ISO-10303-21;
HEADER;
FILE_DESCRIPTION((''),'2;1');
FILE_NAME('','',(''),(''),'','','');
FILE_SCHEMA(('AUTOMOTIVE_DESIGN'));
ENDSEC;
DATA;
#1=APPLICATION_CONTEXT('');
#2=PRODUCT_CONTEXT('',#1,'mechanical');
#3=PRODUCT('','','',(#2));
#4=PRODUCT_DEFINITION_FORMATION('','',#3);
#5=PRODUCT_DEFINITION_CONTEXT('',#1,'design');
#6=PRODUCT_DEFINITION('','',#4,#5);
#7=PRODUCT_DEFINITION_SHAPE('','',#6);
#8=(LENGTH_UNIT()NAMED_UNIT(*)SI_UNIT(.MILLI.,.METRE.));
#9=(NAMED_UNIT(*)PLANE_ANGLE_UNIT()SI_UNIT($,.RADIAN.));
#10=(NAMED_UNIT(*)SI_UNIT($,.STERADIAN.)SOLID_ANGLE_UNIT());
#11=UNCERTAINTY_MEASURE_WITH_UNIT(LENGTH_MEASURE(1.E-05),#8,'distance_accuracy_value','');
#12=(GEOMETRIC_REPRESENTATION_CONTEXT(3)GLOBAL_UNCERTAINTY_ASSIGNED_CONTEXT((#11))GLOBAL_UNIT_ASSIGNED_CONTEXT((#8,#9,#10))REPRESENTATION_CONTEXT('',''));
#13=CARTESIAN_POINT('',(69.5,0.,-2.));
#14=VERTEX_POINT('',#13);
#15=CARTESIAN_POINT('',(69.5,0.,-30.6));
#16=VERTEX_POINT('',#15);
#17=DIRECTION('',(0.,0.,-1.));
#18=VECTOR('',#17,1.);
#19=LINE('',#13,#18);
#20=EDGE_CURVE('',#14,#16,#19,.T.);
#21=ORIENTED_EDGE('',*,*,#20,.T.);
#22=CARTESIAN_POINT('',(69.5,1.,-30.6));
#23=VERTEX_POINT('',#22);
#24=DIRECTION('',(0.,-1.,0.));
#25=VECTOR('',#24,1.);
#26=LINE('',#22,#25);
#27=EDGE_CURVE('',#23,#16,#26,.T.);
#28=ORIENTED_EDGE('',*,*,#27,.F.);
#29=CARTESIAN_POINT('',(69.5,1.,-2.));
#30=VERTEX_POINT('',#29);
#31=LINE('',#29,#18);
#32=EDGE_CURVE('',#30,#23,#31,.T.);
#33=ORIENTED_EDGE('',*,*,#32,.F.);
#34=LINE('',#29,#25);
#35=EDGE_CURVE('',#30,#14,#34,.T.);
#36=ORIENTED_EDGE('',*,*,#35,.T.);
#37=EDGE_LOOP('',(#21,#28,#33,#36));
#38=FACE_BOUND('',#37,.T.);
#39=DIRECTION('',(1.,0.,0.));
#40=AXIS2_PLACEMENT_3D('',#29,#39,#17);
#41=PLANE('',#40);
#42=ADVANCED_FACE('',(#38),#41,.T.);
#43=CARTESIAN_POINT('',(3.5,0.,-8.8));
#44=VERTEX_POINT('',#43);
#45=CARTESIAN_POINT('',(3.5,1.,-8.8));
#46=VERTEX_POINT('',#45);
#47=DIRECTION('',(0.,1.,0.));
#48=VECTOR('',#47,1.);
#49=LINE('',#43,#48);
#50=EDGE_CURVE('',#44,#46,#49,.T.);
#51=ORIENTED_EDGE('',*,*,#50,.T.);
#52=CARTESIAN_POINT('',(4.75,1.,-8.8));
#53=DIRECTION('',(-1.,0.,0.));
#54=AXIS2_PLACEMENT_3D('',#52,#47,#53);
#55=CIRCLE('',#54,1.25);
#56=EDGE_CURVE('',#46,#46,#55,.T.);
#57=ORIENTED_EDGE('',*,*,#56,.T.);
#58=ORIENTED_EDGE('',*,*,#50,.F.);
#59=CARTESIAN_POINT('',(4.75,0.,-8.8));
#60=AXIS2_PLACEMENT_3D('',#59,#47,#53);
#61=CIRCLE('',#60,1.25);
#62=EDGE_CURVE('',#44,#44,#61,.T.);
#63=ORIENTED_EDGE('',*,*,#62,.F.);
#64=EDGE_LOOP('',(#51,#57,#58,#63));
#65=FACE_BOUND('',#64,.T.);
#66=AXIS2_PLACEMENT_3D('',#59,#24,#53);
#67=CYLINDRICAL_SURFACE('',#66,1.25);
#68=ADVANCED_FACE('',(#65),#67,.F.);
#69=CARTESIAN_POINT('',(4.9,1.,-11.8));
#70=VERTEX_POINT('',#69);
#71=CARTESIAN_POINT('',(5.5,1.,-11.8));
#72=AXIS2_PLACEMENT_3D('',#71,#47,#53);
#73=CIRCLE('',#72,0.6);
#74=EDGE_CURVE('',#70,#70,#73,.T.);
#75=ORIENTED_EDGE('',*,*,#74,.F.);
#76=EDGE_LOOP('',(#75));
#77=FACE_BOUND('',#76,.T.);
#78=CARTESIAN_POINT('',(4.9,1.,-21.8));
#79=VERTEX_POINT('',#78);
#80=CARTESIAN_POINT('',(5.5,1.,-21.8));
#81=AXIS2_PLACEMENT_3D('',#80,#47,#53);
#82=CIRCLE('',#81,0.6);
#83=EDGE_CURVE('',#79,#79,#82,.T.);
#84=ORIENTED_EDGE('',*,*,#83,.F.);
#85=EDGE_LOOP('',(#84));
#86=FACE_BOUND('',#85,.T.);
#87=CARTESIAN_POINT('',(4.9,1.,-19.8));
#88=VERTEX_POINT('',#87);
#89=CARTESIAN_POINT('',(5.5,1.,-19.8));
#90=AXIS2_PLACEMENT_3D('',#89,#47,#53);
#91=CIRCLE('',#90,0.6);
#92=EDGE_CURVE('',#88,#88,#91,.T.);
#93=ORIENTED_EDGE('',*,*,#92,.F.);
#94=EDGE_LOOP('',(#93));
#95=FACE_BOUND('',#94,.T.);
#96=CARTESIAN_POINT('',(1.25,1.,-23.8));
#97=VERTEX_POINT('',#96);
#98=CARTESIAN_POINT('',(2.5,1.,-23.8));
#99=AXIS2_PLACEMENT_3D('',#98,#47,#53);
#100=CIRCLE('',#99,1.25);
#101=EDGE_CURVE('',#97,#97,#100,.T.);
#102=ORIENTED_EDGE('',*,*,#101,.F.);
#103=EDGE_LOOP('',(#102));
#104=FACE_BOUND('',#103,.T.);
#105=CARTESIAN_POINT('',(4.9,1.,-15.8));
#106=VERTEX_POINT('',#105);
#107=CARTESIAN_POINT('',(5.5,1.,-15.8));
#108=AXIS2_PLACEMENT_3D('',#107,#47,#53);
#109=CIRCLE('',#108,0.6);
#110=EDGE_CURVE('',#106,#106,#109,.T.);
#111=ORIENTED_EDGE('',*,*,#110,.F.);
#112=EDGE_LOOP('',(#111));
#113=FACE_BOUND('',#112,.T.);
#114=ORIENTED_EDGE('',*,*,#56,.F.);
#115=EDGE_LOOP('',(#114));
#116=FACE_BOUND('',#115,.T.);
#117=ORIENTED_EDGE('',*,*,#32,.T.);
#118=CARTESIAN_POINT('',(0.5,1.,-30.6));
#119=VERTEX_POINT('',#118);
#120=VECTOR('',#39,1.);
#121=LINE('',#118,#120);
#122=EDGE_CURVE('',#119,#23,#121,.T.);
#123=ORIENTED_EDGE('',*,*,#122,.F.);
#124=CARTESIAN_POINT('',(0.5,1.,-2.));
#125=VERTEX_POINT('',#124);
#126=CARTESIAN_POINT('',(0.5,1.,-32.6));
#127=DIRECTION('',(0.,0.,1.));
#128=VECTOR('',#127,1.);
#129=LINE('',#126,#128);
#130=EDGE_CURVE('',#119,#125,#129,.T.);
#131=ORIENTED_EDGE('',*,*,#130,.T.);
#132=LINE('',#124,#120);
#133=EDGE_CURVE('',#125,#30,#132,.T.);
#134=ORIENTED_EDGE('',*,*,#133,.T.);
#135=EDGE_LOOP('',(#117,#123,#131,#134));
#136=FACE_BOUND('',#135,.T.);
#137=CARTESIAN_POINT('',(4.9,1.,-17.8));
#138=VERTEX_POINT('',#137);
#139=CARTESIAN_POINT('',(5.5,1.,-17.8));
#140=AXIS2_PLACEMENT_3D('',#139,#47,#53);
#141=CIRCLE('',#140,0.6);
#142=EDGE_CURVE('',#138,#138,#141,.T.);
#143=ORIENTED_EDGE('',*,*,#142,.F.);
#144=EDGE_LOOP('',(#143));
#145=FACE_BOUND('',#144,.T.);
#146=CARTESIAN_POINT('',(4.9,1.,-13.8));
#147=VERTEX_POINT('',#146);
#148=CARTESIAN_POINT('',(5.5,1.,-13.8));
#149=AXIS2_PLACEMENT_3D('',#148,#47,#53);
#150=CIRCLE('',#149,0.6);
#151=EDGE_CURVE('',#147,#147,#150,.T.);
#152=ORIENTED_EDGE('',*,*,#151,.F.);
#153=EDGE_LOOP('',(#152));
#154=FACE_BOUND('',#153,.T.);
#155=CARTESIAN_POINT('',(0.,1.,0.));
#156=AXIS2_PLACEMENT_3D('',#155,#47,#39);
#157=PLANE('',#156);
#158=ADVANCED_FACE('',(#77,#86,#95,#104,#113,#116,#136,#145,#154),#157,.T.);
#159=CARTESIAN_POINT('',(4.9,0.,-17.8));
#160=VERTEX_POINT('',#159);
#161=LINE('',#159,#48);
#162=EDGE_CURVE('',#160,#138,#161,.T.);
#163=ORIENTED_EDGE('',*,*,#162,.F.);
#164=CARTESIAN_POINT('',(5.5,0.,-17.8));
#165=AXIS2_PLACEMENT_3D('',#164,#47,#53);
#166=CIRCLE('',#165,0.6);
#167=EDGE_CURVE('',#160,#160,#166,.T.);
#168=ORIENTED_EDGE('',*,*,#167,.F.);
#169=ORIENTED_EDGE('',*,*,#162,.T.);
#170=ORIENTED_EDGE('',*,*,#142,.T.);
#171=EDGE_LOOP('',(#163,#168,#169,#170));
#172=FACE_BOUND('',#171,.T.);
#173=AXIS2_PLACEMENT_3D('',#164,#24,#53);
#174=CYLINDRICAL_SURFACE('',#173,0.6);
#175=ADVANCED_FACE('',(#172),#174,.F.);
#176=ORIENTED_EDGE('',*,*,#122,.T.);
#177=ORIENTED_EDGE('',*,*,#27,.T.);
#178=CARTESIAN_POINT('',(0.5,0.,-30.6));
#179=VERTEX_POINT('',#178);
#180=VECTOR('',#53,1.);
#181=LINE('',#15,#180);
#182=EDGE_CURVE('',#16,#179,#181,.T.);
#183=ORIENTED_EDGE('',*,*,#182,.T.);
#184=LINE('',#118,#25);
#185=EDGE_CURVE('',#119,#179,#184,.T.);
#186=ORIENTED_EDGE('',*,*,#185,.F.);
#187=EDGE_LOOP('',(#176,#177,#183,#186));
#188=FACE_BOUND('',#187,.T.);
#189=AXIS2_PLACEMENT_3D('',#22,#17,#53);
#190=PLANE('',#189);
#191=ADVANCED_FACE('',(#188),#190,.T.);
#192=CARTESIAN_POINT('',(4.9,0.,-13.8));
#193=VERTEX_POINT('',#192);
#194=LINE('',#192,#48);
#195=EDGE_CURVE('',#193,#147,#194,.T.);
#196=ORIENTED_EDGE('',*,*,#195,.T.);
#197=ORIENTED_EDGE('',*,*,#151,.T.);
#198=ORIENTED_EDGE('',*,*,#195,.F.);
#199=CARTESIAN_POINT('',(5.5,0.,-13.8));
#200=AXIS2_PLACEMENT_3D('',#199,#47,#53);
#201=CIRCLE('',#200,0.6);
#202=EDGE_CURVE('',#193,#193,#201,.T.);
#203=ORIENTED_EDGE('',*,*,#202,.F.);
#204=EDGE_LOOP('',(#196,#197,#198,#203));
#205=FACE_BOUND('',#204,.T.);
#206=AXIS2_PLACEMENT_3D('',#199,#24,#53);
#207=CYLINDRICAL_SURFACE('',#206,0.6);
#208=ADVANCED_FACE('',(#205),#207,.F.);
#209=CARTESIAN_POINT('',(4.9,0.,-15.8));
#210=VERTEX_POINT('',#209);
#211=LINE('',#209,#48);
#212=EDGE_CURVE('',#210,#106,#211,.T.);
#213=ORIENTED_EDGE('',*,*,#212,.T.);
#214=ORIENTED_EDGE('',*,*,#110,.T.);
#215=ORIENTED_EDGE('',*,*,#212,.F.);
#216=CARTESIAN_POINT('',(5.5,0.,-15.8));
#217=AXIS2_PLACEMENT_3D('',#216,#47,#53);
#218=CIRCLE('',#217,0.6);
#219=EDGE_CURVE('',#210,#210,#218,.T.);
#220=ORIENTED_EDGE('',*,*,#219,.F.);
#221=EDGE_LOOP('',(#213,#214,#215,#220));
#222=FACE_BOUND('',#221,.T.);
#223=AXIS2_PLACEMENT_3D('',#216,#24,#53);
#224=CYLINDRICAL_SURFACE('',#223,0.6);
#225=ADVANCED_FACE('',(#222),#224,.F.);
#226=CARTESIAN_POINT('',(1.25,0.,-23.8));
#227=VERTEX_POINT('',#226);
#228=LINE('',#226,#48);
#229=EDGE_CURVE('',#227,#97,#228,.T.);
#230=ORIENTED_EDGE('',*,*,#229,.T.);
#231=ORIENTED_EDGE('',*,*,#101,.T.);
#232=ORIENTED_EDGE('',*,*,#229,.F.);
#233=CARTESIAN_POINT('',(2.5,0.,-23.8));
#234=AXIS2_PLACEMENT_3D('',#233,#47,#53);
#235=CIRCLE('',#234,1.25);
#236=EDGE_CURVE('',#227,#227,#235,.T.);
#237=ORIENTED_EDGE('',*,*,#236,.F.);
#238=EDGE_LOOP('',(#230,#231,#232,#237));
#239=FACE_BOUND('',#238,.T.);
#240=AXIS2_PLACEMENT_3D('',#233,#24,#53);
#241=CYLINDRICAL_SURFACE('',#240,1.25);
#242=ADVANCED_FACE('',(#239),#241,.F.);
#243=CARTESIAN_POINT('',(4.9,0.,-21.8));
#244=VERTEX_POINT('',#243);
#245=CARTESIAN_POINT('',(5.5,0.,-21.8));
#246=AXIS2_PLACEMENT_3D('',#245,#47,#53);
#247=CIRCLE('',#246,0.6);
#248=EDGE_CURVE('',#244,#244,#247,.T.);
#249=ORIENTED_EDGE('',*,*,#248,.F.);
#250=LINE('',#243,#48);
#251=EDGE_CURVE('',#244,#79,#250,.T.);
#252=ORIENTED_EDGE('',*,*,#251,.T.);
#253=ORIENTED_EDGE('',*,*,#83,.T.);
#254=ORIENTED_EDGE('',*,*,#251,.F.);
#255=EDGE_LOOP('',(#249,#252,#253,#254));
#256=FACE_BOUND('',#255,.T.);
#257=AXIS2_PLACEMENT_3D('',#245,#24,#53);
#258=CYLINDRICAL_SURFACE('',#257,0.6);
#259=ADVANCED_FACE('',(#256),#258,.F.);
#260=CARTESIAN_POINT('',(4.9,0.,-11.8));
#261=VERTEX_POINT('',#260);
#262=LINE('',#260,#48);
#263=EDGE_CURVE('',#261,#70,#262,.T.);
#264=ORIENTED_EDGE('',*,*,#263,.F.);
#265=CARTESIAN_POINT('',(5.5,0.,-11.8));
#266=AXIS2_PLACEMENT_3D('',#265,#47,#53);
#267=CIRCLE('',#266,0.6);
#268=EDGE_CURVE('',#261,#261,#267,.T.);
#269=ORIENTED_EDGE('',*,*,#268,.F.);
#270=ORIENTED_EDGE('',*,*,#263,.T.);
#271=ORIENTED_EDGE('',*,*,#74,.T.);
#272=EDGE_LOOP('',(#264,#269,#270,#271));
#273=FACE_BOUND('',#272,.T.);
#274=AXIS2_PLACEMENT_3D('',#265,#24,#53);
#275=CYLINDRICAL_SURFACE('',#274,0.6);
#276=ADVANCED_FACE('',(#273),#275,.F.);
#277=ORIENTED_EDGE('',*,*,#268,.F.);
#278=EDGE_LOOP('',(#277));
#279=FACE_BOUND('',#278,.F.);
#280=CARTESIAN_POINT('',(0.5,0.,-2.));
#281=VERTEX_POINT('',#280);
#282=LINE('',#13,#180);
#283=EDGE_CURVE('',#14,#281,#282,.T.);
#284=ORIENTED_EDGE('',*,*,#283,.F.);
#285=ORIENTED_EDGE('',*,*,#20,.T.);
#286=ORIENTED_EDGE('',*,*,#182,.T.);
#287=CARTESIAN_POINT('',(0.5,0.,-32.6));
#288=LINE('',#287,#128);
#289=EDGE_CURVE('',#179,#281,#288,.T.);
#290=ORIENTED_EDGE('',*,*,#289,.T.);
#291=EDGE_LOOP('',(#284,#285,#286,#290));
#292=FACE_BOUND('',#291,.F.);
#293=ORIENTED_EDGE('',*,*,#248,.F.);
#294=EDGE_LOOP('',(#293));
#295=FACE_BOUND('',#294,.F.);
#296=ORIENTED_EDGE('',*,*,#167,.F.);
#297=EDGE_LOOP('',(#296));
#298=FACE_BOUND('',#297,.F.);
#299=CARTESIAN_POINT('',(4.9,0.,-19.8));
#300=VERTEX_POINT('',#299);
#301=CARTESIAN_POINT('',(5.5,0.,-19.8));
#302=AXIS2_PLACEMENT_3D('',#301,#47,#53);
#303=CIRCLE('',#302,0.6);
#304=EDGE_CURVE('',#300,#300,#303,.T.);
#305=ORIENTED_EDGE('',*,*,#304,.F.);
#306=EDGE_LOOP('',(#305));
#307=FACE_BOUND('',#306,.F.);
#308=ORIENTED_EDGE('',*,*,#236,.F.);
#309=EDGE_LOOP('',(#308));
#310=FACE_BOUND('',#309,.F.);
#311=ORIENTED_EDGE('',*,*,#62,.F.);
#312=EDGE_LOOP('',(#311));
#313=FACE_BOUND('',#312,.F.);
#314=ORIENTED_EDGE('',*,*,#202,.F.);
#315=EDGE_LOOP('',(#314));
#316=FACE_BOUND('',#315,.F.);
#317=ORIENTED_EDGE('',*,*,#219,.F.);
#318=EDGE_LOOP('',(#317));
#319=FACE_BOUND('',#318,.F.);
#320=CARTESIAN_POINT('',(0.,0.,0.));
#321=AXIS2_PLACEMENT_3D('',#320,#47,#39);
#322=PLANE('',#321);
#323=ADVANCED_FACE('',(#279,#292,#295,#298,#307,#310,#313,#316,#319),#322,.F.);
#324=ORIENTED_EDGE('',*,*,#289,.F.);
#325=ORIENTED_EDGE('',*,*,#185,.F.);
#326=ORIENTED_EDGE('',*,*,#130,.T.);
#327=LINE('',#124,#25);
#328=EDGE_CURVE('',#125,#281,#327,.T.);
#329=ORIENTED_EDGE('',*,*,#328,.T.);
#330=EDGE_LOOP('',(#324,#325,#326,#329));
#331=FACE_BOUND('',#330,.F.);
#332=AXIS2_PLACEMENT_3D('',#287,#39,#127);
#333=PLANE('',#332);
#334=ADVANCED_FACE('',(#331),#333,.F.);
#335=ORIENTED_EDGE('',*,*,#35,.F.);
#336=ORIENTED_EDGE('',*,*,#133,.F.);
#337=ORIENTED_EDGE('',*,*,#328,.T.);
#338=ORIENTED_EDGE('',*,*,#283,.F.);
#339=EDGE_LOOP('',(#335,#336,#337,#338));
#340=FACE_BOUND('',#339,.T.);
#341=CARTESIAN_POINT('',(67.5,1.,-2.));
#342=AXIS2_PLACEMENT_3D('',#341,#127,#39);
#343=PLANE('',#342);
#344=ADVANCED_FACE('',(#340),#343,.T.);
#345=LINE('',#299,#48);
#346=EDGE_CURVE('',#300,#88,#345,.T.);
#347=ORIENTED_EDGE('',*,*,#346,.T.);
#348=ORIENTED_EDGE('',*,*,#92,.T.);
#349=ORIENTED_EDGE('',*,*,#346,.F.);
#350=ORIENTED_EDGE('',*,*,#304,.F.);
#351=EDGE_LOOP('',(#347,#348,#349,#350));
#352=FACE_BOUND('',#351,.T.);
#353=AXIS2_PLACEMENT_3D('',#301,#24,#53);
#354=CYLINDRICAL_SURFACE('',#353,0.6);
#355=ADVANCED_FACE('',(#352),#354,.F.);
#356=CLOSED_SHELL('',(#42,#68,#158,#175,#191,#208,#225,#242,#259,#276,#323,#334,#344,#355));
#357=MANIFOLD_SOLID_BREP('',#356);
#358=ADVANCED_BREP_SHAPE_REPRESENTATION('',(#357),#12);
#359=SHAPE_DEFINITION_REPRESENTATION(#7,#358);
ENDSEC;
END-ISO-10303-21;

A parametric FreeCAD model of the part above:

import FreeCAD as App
import Part
import Sketcher

doc = App.newDocument("Part")
body = doc.addObject("PartDesign::Body", "Body")

# Sketch on XZ plane
sketch1 = body.newObject("Sketcher::SketchObject", "Sketch")
sketch1.AttachmentSupport = (doc.getObject("XZ_Plane"), [""])
sketch1.MapMode = "FlatFace"
sketch1.addGeometry(Part.LineSegment(App.Vector(67.5, -32.6, 0), App.Vector(0.5, -32.6, 0)), False)
sketch1.addGeometry(Part.LineSegment(App.Vector(0.5, -32.6, 0), App.Vector(0.5, 0, 0)), False)
sketch1.addGeometry(Part.LineSegment(App.Vector(0.5, 0, 0), App.Vector(67.5, 0, 0)), False)
sketch1.addGeometry(Part.LineSegment(App.Vector(67.5, 0, 0), App.Vector(67.5, -32.6, 0)), False)
sketch1.addGeometry(Part.Circle(App.Vector(2.5, -23.8, 0), App.Vector(0, 0, 1), 1.2), False)
sketch1.addGeometry(Part.Circle(App.Vector(5.5, -21.8, 0), App.Vector(0, 0, 1), 0.6), False)
sketch1.addGeometry(Part.Circle(App.Vector(5.5, -19.8, 0), App.Vector(0, 0, 1), 0.6), False)
sketch1.addGeometry(Part.Circle(App.Vector(5.5, -17.8, 0), App.Vector(0, 0, 1), 0.6), False)
sketch1.addGeometry(Part.Circle(App.Vector(5.5, -15.8, 0), App.Vector(0, 0, 1), 0.6), False)
sketch1.addGeometry(Part.Circle(App.Vector(5.5, -13.8, 0), App.Vector(0, 0, 1), 0.6), False)
sketch1.addGeometry(Part.Circle(App.Vector(5.5, -11.8, 0), App.Vector(0, 0, 1), 0.6), False)
sketch1.addGeometry(Part.Circle(App.Vector(4.8, -8.8, 0), App.Vector(0, 0, 1), 1.2), False)
sketch1.addConstraint(Sketcher.Constraint("Coincident", 0, 2, 1, 1))
sketch1.addConstraint(Sketcher.Constraint("Coincident", 1, 2, 2, 1))
sketch1.addConstraint(Sketcher.Constraint("Coincident", 2, 2, 3, 1))
sketch1.addConstraint(Sketcher.Constraint("Coincident", 3, 2, 0, 1))
sketch1.addConstraint(Sketcher.Constraint("Horizontal", 0))
sketch1.addConstraint(Sketcher.Constraint("Vertical", 1))
sketch1.addConstraint(Sketcher.Constraint("Horizontal", 2))
sketch1.addConstraint(Sketcher.Constraint("Vertical", 3))
sketch1.addConstraint(Sketcher.Constraint("Equal", 5, 6))
sketch1.addConstraint(Sketcher.Constraint("Equal", 6, 7))
sketch1.addConstraint(Sketcher.Constraint("Equal", 7, 8))
sketch1.addConstraint(Sketcher.Constraint("Equal", 8, 9))
sketch1.addConstraint(Sketcher.Constraint("Equal", 9, 10))
sketch1.addConstraint(Sketcher.Constraint("Equal", 4, 11))
sketch1.addConstraint(Sketcher.Constraint("PointOnObject", 1, 2, -1))
sketch1.addConstraint(Sketcher.Constraint("Vertical", 5, 3, 6, 3))
sketch1.addConstraint(Sketcher.Constraint("Vertical", 6, 3, 7, 3))
sketch1.addConstraint(Sketcher.Constraint("Vertical", 7, 3, 8, 3))
sketch1.addConstraint(Sketcher.Constraint("Vertical", 8, 3, 9, 3))
sketch1.addConstraint(Sketcher.Constraint("Vertical", 9, 3, 10, 3))
sketch1.addConstraint(Sketcher.Constraint("Diameter", 4, 2.5))
sketch1.addConstraint(Sketcher.Constraint("Diameter", 5, 1.2))
sketch1.addConstraint(Sketcher.Constraint("DistanceX", 0, 2, 0, 1, 67.0))
sketch1.addConstraint(Sketcher.Constraint("DistanceX", -1, 1, 4, 3, 2.5))
sketch1.addConstraint(Sketcher.Constraint("DistanceY", 1, 1, 1, 2, 32.6))
sketch1.addConstraint(Sketcher.Constraint("DistanceX", 4, 3, 5, 3, 3.0))
sketch1.addConstraint(Sketcher.Constraint("DistanceY", 4, 3, 5, 3, 2.0))
sketch1.addConstraint(Sketcher.Constraint("DistanceY", 5, 3, 6, 3, 2.0))
sketch1.addConstraint(Sketcher.Constraint("DistanceY", 6, 3, 7, 3, 2.0))
sketch1.addConstraint(Sketcher.Constraint("DistanceY", 7, 3, 8, 3, 2.0))
sketch1.addConstraint(Sketcher.Constraint("DistanceY", 8, 3, 9, 3, 2.0))
sketch1.addConstraint(Sketcher.Constraint("DistanceY", 9, 3, 10, 3, 2.0))
sketch1.addConstraint(Sketcher.Constraint("DistanceY", 10, 3, 11, 3, 3.0))
sketch1.addConstraint(Sketcher.Constraint("DistanceX", 0, 2, 4, 3, 2.0))
sketch1.addConstraint(Sketcher.Constraint("DistanceY", 4, 3, -1, 1, 23.8))
sketch1.addConstraint(Sketcher.Constraint("DistanceX", -1, 1, 11, 3, 4.75))
pad1 = body.newObject("PartDesign::Pad", "Pad")
pad1.Profile = sketch1
pad1.Length = 1
pad1.Reversed = True

# Sketch on XZ plane
sketch2 = body.newObject("Sketcher::SketchObject", "Sketch001")
sketch2.AttachmentSupport = (doc.getObject("XZ_Plane"), [""])
sketch2.MapMode = "FlatFace"
sketch2.AttachmentOffset = App.Placement(App.Vector(0, 0, -1), App.Rotation())
sketch2.addGeometry(Part.LineSegment(App.Vector(0.5, -2, 0), App.Vector(0.5, 0, 0)), False)
sketch2.addGeometry(Part.LineSegment(App.Vector(0.5, 0, 0), App.Vector(67.5, 0, 0)), False)
sketch2.addGeometry(Part.LineSegment(App.Vector(67.5, 0, 0), App.Vector(67.5, -2, 0)), False)
sketch2.addGeometry(Part.LineSegment(App.Vector(67.5, -2, 0), App.Vector(0.5, -2, 0)), False)
sketch2.addGeometry(Part.LineSegment(App.Vector(0.5, -32.6, 0), App.Vector(0.5, -30.6, 0)), False)
sketch2.addGeometry(Part.LineSegment(App.Vector(0.5, -30.6, 0), App.Vector(67.5, -30.6, 0)), False)
sketch2.addGeometry(Part.LineSegment(App.Vector(67.5, -30.6, 0), App.Vector(67.5, -32.6, 0)), False)
sketch2.addGeometry(Part.LineSegment(App.Vector(67.5, -32.6, 0), App.Vector(0.5, -32.6, 0)), False)
sketch2.addConstraint(Sketcher.Constraint("Coincident", 0, 2, 1, 1))
sketch2.addConstraint(Sketcher.Constraint("Coincident", 1, 2, 2, 1))
sketch2.addConstraint(Sketcher.Constraint("Coincident", 2, 2, 3, 1))
sketch2.addConstraint(Sketcher.Constraint("Coincident", 3, 2, 0, 1))
sketch2.addConstraint(Sketcher.Constraint("Coincident", 4, 2, 5, 1))
sketch2.addConstraint(Sketcher.Constraint("Coincident", 5, 2, 6, 1))
sketch2.addConstraint(Sketcher.Constraint("Coincident", 6, 2, 7, 1))
sketch2.addConstraint(Sketcher.Constraint("Coincident", 7, 2, 4, 1))
sketch2.addConstraint(Sketcher.Constraint("Vertical", 0))
sketch2.addConstraint(Sketcher.Constraint("Horizontal", 1))
sketch2.addConstraint(Sketcher.Constraint("Vertical", 2))
sketch2.addConstraint(Sketcher.Constraint("Horizontal", 3))
sketch2.addConstraint(Sketcher.Constraint("Vertical", 4))
sketch2.addConstraint(Sketcher.Constraint("Horizontal", 5))
sketch2.addConstraint(Sketcher.Constraint("Vertical", 6))
sketch2.addConstraint(Sketcher.Constraint("Horizontal", 7))
sketch2.addConstraint(Sketcher.Constraint("PointOnObject", 0, 2, -1))
sketch2.addConstraint(Sketcher.Constraint("Vertical", 3, 2, 4, 2))
sketch2.addConstraint(Sketcher.Constraint("Vertical", 2, 2, 5, 2))
sketch2.addConstraint(Sketcher.Constraint("Equal", 2, 4))
sketch2.addConstraint(Sketcher.Constraint("DistanceY", 0, 1, 0, 2, 2.0))
sketch2.addConstraint(Sketcher.Constraint("DistanceX", 1, 1, 1, 2, 67.0))
sketch2.addConstraint(Sketcher.Constraint("DistanceX", -1, 1, 0, 2, 0.5))
sketch2.addConstraint(Sketcher.Constraint("DistanceY", 4, 2, -1, 1, 30.6))
pocket1 = body.newObject("PartDesign::Pocket", "Pocket")
pocket1.Profile = sketch2
pocket1.Length = 10
pocket1.Reversed = True

# Sketch on XZ plane
sketch3 = body.newObject("Sketcher::SketchObject", "Sketch002")
sketch3.AttachmentSupport = (doc.getObject("XZ_Plane"), [""])
sketch3.MapMode = "FlatFace"
sketch3.AttachmentOffset = App.Placement(App.Vector(0, 0, -1), App.Rotation())
sketch3.addGeometry(Part.LineSegment(App.Vector(67.5, -30.6, 0), App.Vector(67.5, -2, 0)), False)
sketch3.addGeometry(Part.LineSegment(App.Vector(67.5, -2, 0), App.Vector(69.5, -2, 0)), False)
sketch3.addGeometry(Part.LineSegment(App.Vector(69.5, -2, 0), App.Vector(69.5, -30.6, 0)), False)
sketch3.addGeometry(Part.LineSegment(App.Vector(69.5, -30.6, 0), App.Vector(67.5, -30.6, 0)), False)
sketch3.addConstraint(Sketcher.Constraint("Coincident", 0, 2, 1, 1))
sketch3.addConstraint(Sketcher.Constraint("Coincident", 1, 2, 2, 1))
sketch3.addConstraint(Sketcher.Constraint("Coincident", 2, 2, 3, 1))
sketch3.addConstraint(Sketcher.Constraint("Coincident", 3, 2, 0, 1))
sketch3.addConstraint(Sketcher.Constraint("Vertical", 0))
sketch3.addConstraint(Sketcher.Constraint("Horizontal", 1))
sketch3.addConstraint(Sketcher.Constraint("Vertical", 2))
sketch3.addConstraint(Sketcher.Constraint("Horizontal", 3))
sketch3.addConstraint(Sketcher.Constraint("DistanceX", 1, 1, 1, 2, 2.0))
sketch3.addConstraint(Sketcher.Constraint("DistanceY", 0, 2, -1, 1, 2.0))
sketch3.addConstraint(Sketcher.Constraint("DistanceY", 0, 1, 0, 2, 28.6))
sketch3.addConstraint(Sketcher.Constraint("DistanceX", -1, 1, 0, 2, 67.5))
pad2 = body.newObject("PartDesign::Pad", "Pad001")
pad2.Profile = sketch3
pad2.Length = 1

doc.recompute()
